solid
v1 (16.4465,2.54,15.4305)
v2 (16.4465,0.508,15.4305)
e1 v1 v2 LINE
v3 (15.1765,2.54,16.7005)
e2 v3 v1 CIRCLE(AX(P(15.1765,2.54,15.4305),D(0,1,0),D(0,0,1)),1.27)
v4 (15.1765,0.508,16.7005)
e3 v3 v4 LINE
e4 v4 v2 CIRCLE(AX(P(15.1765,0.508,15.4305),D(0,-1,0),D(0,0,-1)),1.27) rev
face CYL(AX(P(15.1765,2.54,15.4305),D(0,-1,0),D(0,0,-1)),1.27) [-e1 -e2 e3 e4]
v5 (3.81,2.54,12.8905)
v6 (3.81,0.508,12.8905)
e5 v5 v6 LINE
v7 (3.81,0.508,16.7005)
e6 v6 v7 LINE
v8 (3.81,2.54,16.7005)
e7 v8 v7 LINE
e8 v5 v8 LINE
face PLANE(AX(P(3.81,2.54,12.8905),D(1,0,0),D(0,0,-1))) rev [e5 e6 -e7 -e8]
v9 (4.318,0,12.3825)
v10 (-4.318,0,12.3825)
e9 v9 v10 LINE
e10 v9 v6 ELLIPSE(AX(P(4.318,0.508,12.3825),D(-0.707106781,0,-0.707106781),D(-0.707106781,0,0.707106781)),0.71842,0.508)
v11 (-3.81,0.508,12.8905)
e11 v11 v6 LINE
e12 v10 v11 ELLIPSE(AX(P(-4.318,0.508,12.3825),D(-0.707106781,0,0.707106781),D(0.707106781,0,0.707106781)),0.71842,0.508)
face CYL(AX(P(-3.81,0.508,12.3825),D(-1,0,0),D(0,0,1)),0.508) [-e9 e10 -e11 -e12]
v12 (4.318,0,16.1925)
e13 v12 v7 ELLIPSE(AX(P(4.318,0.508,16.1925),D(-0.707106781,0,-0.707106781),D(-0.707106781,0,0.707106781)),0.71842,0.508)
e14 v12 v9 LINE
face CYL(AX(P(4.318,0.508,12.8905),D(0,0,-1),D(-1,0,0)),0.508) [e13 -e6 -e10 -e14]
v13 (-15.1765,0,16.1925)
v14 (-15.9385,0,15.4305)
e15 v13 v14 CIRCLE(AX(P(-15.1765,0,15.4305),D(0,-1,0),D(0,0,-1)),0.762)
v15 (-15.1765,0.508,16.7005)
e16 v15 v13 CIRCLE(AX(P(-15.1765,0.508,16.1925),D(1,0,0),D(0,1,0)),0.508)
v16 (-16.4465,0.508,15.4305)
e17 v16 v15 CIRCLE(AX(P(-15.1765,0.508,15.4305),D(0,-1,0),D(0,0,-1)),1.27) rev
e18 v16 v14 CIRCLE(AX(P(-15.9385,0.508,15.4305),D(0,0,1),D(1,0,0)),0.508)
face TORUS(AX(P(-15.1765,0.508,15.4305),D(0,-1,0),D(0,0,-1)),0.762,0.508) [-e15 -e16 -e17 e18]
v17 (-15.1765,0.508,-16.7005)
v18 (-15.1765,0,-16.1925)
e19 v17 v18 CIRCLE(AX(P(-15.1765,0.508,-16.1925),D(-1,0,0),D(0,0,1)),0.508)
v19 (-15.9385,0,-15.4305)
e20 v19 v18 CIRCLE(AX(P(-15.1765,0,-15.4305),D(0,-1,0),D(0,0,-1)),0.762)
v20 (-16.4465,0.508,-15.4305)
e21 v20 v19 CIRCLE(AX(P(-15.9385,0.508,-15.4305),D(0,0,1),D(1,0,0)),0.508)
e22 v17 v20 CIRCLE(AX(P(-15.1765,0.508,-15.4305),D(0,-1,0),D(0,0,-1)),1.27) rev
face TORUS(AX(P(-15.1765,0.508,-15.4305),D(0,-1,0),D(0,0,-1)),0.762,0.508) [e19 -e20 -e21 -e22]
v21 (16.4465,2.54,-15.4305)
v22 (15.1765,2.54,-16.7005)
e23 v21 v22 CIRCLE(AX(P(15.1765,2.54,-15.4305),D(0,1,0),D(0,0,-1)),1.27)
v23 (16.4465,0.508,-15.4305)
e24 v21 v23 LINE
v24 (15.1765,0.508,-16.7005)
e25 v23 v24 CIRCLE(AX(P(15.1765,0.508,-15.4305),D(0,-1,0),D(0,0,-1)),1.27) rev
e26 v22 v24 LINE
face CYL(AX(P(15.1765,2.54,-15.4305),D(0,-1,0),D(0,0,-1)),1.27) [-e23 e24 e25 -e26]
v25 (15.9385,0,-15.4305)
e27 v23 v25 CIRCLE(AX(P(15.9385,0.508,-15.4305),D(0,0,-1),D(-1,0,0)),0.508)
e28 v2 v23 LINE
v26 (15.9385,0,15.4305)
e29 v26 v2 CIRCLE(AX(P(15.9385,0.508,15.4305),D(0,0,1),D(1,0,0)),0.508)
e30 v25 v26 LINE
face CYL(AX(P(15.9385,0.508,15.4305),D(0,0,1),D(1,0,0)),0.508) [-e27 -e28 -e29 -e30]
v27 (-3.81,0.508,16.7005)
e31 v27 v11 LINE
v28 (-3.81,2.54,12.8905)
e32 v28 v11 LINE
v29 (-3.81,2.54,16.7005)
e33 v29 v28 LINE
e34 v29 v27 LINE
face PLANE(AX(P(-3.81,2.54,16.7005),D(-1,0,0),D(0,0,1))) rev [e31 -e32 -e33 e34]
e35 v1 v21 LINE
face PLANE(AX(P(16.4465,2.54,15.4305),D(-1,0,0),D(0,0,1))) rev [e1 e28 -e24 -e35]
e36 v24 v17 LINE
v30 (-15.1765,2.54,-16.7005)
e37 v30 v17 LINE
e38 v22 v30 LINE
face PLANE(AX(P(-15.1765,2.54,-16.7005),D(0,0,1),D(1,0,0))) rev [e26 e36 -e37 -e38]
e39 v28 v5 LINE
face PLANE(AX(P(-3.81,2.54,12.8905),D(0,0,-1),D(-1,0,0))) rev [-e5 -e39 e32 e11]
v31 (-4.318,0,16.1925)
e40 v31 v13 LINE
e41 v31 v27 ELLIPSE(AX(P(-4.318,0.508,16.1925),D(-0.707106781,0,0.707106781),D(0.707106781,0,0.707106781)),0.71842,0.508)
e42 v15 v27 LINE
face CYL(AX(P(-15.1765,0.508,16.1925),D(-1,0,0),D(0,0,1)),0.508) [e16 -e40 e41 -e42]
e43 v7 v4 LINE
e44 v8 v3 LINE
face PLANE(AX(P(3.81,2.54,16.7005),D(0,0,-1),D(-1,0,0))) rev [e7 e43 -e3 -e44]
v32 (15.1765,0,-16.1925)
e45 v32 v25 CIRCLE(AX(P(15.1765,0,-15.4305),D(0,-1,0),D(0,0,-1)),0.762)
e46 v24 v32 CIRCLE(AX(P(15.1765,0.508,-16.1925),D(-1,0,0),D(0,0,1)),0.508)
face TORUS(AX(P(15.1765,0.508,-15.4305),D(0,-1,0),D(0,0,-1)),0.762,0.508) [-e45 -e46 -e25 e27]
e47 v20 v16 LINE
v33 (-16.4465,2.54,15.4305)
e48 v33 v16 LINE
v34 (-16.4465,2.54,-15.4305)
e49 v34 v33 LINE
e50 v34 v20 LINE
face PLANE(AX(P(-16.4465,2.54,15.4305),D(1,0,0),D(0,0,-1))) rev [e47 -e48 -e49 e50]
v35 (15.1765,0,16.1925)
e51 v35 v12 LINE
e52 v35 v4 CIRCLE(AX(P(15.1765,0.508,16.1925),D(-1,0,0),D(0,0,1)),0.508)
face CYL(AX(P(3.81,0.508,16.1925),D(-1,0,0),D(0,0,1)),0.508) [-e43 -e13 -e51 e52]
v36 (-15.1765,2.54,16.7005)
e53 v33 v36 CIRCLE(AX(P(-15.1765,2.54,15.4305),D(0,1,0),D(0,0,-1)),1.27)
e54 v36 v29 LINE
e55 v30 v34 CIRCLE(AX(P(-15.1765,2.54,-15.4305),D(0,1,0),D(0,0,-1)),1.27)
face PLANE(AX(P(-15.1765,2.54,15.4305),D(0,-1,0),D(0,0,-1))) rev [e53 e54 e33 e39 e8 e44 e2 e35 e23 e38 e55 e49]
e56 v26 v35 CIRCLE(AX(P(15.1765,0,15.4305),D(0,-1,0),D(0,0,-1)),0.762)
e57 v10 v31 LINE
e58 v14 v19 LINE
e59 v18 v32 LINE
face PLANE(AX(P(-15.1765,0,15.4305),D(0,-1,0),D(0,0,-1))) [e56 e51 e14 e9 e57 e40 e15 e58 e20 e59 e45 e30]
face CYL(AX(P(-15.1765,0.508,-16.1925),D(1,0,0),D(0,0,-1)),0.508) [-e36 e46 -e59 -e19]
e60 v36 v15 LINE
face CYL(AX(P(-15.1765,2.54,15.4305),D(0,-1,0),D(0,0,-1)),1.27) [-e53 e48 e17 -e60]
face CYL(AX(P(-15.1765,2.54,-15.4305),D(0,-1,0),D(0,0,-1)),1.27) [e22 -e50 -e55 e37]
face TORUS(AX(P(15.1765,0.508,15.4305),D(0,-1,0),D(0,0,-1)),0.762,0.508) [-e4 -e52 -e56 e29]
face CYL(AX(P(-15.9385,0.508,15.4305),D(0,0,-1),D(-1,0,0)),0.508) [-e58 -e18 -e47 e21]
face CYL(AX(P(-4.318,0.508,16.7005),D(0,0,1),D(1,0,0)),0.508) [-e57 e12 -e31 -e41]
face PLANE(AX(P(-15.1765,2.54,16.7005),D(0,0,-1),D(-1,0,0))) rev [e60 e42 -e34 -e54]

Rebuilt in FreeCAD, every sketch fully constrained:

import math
import FreeCAD as App
import Part
import Sketcher
Q = App.Units.Quantity


def edges_at(feature, points):
    """Names of the edges that pass closest to the given points."""
    edges = feature.Shape.Edges
    near = lambda p: min(range(len(edges)), key=lambda i: edges[i].distToShape(Part.Vertex(*p))[0])
    return sorted({f"Edge{near(p) + 1}" for p in points})

doc = App.newDocument("Part")
body = doc.addObject("PartDesign::Body", "Body")

sketch1 = body.newObject("Sketcher::SketchObject", "Sketch")
sketch1.AttachmentSupport = (doc.getObject("XZ_Plane"), [""])
sketch1.MapMode = "FlatFace"
sketch1.addGeometry([
    Part.LineSegment(App.Vector(-3.81, 16.7005, 0), App.Vector(-3.81, 12.8905, 0)),
    Part.LineSegment(App.Vector(-3.81, 12.8905, 0), App.Vector(3.81, 12.8905, 0)),
    Part.LineSegment(App.Vector(3.81, 12.8905, 0), App.Vector(3.81, 16.7005, 0)),
    Part.LineSegment(App.Vector(3.81, 16.7005, 0), App.Vector(15.1765, 16.7005, 0)),
    Part.ArcOfCircle(Part.Circle(App.Vector(15.1765, 15.4305, 0), App.Vector(0, 0, 1), 1.27), math.radians(0), math.radians(90)),
    Part.LineSegment(App.Vector(16.4465, 15.4305, 0), App.Vector(16.4465, -15.4305, 0)),
    Part.ArcOfCircle(Part.Circle(App.Vector(15.1765, -15.4305, 0), App.Vector(0, 0, 1), 1.27), math.radians(-90), math.radians(0)),
    Part.LineSegment(App.Vector(15.1765, -16.7005, 0), App.Vector(-15.1765, -16.7005, 0)),
    Part.ArcOfCircle(Part.Circle(App.Vector(-15.1765, -15.4305, 0), App.Vector(0, 0, 1), 1.27), math.radians(180), math.radians(270)),
    Part.LineSegment(App.Vector(-16.4465, -15.4305, 0), App.Vector(-16.4465, 15.4305, 0)),
    Part.ArcOfCircle(Part.Circle(App.Vector(-15.1765, 15.4305, 0), App.Vector(0, 0, 1), 1.27), math.radians(90), math.radians(180)),
    Part.LineSegment(App.Vector(-15.1765, 16.7005, 0), App.Vector(-3.81, 16.7005, 0)),
], False)
sketch1.addConstraint([
    Sketcher.Constraint("Coincident", 0, 2, 1, 1),
    Sketcher.Constraint("Coincident", 1, 2, 2, 1),
    Sketcher.Constraint("Coincident", 2, 2, 3, 1),
    Sketcher.Constraint("Tangent", 3, 2, 4, 2),
    Sketcher.Constraint("Tangent", 4, 1, 5, 1),
    Sketcher.Constraint("Tangent", 5, 2, 6, 2),
    Sketcher.Constraint("Tangent", 6, 1, 7, 1),
    Sketcher.Constraint("Tangent", 7, 2, 8, 2),
    Sketcher.Constraint("Tangent", 8, 1, 9, 1),
    Sketcher.Constraint("Tangent", 9, 2, 10, 2),
    Sketcher.Constraint("Tangent", 10, 1, 11, 1),
    Sketcher.Constraint("Coincident", 11, 2, 0, 1),
    Sketcher.Constraint("Vertical", 0),
    Sketcher.Constraint("Horizontal", 1),
    Sketcher.Constraint("Vertical", 2),
    Sketcher.Constraint("Horizontal", 3),
    Sketcher.Constraint("Vertical", 5),
    Sketcher.Constraint("Horizontal", 7),
    Sketcher.Constraint("Vertical", 9),
    Sketcher.Constraint("Horizontal", 11),
    Sketcher.Constraint("Equal", 4, 6),
    Sketcher.Constraint("Equal", 6, 8),
    Sketcher.Constraint("Equal", 8, 10),
    Sketcher.Constraint("Symmetric", 4, 3, 8, 3, -1, 1),
    Sketcher.Constraint("Symmetric", 2, 2, 11, 2, -2),
    Sketcher.Constraint("Radius", 4, Q("0.05 in")),
    Sketcher.Constraint("DistanceX", 1, 1, 1, 2, Q("0.3 in")),
    Sketcher.Constraint("DistanceY", 0, 2, 0, 1, Q("0.15 in")),
    Sketcher.Constraint("DistanceX", 7, 2, 7, 1, Q("1.195 in")),
    Sketcher.Constraint("DistanceY", 5, 2, 5, 1, Q("1.215 in")),
])
pad1 = body.newObject("PartDesign::Pad", "Pad")
pad1.Profile = sketch1
pad1.Length = Q("0.1 in")
pad1.Reversed = True
doc.recompute()

fillet = body.newObject("PartDesign::Fillet", "Fillet")
fillet.Base = (pad1, edges_at(pad1, [
    (-16.447, 0, 0),
    (-16.075, 0, -16.329),
    (0, 0, -16.701),
    (16.075, 0, -16.329),
    (16.447, 0, 0),
    (16.075, 0, 16.329),
    (9.493, 0, 16.701),
    (3.81, 0, 14.796),
    (0, 0, 12.89),
    (-3.81, 0, 14.796),
    (-9.493, 0, 16.701),
    (-16.075, 0, 16.329),
]))
fillet.Radius = Q("0.02 in")

doc.recompute()
